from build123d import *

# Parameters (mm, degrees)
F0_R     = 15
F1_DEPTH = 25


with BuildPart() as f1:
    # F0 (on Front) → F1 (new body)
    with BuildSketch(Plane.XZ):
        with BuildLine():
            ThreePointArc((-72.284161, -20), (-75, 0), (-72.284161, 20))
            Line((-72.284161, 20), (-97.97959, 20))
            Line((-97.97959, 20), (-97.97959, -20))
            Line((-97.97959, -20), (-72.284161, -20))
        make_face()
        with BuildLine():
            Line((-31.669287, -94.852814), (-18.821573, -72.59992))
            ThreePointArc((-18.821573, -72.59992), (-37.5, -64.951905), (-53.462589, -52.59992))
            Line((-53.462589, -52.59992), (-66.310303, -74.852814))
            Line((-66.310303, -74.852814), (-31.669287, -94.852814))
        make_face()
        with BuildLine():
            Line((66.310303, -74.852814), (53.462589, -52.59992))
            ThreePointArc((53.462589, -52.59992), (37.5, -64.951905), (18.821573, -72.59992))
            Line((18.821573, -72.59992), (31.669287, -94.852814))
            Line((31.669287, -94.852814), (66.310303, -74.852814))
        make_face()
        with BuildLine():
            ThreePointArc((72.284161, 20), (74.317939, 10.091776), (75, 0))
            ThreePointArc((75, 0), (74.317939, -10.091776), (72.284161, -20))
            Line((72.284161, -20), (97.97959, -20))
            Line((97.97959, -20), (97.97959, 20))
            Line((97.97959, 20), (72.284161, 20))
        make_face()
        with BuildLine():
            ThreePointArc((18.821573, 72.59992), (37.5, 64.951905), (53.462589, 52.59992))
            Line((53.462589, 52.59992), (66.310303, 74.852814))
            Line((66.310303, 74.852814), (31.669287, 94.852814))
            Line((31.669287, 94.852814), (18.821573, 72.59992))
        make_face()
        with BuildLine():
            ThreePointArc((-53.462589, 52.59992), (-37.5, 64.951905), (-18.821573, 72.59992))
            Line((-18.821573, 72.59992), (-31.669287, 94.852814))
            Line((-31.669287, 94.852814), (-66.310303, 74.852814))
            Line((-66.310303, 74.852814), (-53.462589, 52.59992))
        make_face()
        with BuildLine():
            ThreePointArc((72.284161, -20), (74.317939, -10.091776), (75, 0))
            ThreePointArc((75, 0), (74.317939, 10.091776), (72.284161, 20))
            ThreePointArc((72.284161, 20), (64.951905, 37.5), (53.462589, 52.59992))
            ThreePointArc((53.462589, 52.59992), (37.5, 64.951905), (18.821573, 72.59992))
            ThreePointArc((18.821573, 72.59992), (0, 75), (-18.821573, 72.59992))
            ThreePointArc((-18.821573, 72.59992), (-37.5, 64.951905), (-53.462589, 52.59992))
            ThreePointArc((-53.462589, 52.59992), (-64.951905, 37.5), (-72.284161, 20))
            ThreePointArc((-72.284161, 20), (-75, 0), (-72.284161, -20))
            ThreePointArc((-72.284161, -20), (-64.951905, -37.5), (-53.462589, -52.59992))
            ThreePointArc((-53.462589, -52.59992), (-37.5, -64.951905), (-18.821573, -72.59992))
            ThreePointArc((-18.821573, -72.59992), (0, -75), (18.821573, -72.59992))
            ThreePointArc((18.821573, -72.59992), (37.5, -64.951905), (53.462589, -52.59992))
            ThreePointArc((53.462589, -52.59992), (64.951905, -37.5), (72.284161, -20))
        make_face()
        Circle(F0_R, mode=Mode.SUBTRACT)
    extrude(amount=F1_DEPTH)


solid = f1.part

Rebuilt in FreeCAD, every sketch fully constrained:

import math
import FreeCAD as App
import Part
import Sketcher

V = App.Vector
Q = App.Units.Quantity

doc = App.newDocument("Part")
params = doc.addObject("Spreadsheet::Sheet", "Params")
for row, (alias, value) in enumerate([
    ("sketch1_diameter", "30 mm"),
    ("sketch1_radius", "75.000001 mm"),
    ("sketch1_radius2", "74.999999 mm"),
    ("sketch1_height", "40 mm"),
    ("sketch1_length", "40 mm"),
    ("pad1_length", "25 mm"),
], start=1):
    params.set(f"A{row}", alias)
    params.set(f"B{row}", "=" + value)
    params.setAlias(f"B{row}", alias)

body = doc.addObject("PartDesign::Body", "Body")

# Sketch on XZ plane
sketch1 = body.newObject("Sketcher::SketchObject", "Sketch")
sketch1.AttachmentSupport = (doc.getObject("XZ_Plane"), [""])
sketch1.MapMode = "FlatFace"
sketch1.addGeometry([
    Part.LineSegment(V(-72, 20, 0), V(-98, 20, 0)),  # 0
    Part.LineSegment(V(-98, 20, 0), V(-98, -20, 0)),  # 1
    Part.LineSegment(V(-98, -20, 0), V(-72, -20, 0)),  # 2
    Part.ArcOfCircle(Part.Circle(V(0, 0, 0), V(0, 0, 1), 75), math.radians(-165), math.radians(-135)),  # 3
    Part.LineSegment(V(-53, -53, 0), V(-66, -75, 0)),  # 4
    Part.LineSegment(V(-66, -75, 0), V(-32, -95, 0)),  # 5
    Part.LineSegment(V(-32, -95, 0), V(-19, -73, 0)),  # 6
    Part.ArcOfCircle(Part.Circle(V(0, 0, 0), V(0, 0, 1), 75), math.radians(-105), math.radians(-75)),  # 7
    Part.LineSegment(V(19, -73, 0), V(32, -95, 0)),  # 8
    Part.LineSegment(V(32, -95, 0), V(66, -75, 0)),  # 9
    Part.LineSegment(V(66, -75, 0), V(53, -53, 0)),  # 10
    Part.ArcOfCircle(Part.Circle(V(0, 0, 0), V(0, 0, 1), 75), math.radians(-45), math.radians(-15)),  # 11
    Part.LineSegment(V(72, -20, 0), V(98, -20, 0)),  # 12
    Part.LineSegment(V(98, -20, 0), V(98, 20, 0)),  # 13
    Part.LineSegment(V(98, 20, 0), V(72, 20, 0)),  # 14
    Part.ArcOfCircle(Part.Circle(V(0, 0, 0), V(0, 0, 1), 75), math.radians(15), math.radians(45)),  # 15
    Part.LineSegment(V(53, 53, 0), V(66, 75, 0)),  # 16
    Part.LineSegment(V(66, 75, 0), V(32, 95, 0)),  # 17
    Part.LineSegment(V(32, 95, 0), V(19, 73, 0)),  # 18
    Part.ArcOfCircle(Part.Circle(V(0, 0, 0), V(0, 0, 1), 75), math.radians(75), math.radians(105)),  # 19
    Part.LineSegment(V(-19, 73, 0), V(-32, 95, 0)),  # 20
    Part.LineSegment(V(-32, 95, 0), V(-66, 75, 0)),  # 21
    Part.LineSegment(V(-66, 75, 0), V(-53, 53, 0)),  # 22
    Part.ArcOfCircle(Part.Circle(V(0, 0, 0), V(0, 0, 1), 75), math.radians(135), math.radians(165)),  # 23
    Part.Circle(V(0, 0, 0), V(0, 0, 1), 15),  # 24
], False)
sketch1.addConstraint([
    Sketcher.Constraint("Coincident", 0, 2, 1, 1),
    Sketcher.Constraint("Coincident", 1, 2, 2, 1),
    Sketcher.Constraint("Coincident", 2, 2, 3, 1),
    Sketcher.Constraint("Coincident", 3, 2, 4, 1),
    Sketcher.Constraint("Coincident", 4, 2, 5, 1),
    Sketcher.Constraint("Coincident", 5, 2, 6, 1),
    Sketcher.Constraint("Coincident", 6, 2, 7, 1),
    Sketcher.Constraint("Coincident", 7, 2, 8, 1),
    Sketcher.Constraint("Coincident", 8, 2, 9, 1),
    Sketcher.Constraint("Coincident", 9, 2, 10, 1),
    Sketcher.Constraint("Coincident", 10, 2, 11, 1),
    Sketcher.Constraint("Coincident", 11, 2, 12, 1),
    Sketcher.Constraint("Coincident", 12, 2, 13, 1),
    Sketcher.Constraint("Coincident", 13, 2, 14, 1),
    Sketcher.Constraint("Coincident", 14, 2, 15, 1),
    Sketcher.Constraint("Coincident", 15, 2, 16, 1),
    Sketcher.Constraint("Coincident", 16, 2, 17, 1),
    Sketcher.Constraint("Coincident", 17, 2, 18, 1),
    Sketcher.Constraint("Coincident", 18, 2, 19, 1),
    Sketcher.Constraint("Coincident", 19, 2, 20, 1),
    Sketcher.Constraint("Coincident", 20, 2, 21, 1),
    Sketcher.Constraint("Coincident", 21, 2, 22, 1),
    Sketcher.Constraint("Coincident", 22, 2, 23, 1),
    Sketcher.Constraint("Coincident", 23, 2, 0, 1),
    Sketcher.Constraint("Horizontal", 0),
    Sketcher.Constraint("Vertical", 1),
    Sketcher.Constraint("Horizontal", 2),
    Sketcher.Constraint("Horizontal", 12),
    Sketcher.Constraint("Vertical", 13),
    Sketcher.Constraint("Horizontal", 14),
    Sketcher.Constraint("Coincident", 3, 3, -1, 1),
    Sketcher.Constraint("Coincident", 7, 3, -1, 1),
    Sketcher.Constraint("Coincident", 11, 3, -1, 1),
    Sketcher.Constraint("Coincident", 15, 3, -1, 1),
    Sketcher.Constraint("Coincident", 19, 3, -1, 1),
    Sketcher.Constraint("Coincident", 23, 3, -1, 1),
    Sketcher.Constraint("Coincident", 24, 3, -1, 1),
    Sketcher.Constraint("Equal", 3, 11),
    Sketcher.Constraint("Equal", 11, 15),
    Sketcher.Constraint("Equal", 7, 19),
    Sketcher.Constraint("Equal", 15, 23),
    Sketcher.Constraint("Symmetric", 0, 2, 12, 2, -1, 1),
    Sketcher.Constraint("Symmetric", 4, 2, 16, 2, -1, 1),
    Sketcher.Constraint("Symmetric", 5, 2, 17, 2, -1, 1),
    Sketcher.Constraint("Symmetric", 8, 2, 20, 2, -1, 1),
    Sketcher.Constraint("Symmetric", 9, 2, 21, 2, -1, 1),
    Sketcher.Constraint("Symmetric", 5, 2, 8, 2, -2),
    Sketcher.Constraint("Symmetric", 4, 2, 9, 2, -2),
    Sketcher.Constraint("Perpendicular", 4, 5),
    Sketcher.Constraint("Perpendicular", 5, 6),
    Sketcher.Constraint("Perpendicular", 8, 9),
    Sketcher.Constraint("Perpendicular", 9, 10),
    Sketcher.Constraint("Parallel", 6, 16),
    Sketcher.Constraint("Perpendicular", 17, 18),
    Sketcher.Constraint("Parallel", 10, 20),
    Sketcher.Constraint("Perpendicular", 21, 22),
    Sketcher.Constraint("Horizontal", 2, 2, 11, 2),
    Sketcher.Constraint("Horizontal", 0, 2, 13, 2),
    Sketcher.Constraint("Equal", 4, 6),
    Sketcher.Constraint("Diameter", 24, 30.0),
    Sketcher.Constraint("Radius", 3, 75.000001),
    Sketcher.Constraint("Radius", 7, 74.999999),
    Sketcher.Constraint("DistanceY", 1, 2, 1, 1, 40.0),
    Sketcher.Constraint("Angle", 4, Q("-119.999999 deg")),
    Sketcher.Constraint("Distance", 5, 40.0),
    Sketcher.Constraint("DistanceX", 1, 2, 3, 2, 44.517001),
    Sketcher.Constraint("DistanceX", 4, 2, 11, 3, 66.310301),
])
sketch1.setExpression("Constraints[59]", "Params.sketch1_diameter")
sketch1.setExpression("Constraints[60]", "Params.sketch1_radius")
sketch1.setExpression("Constraints[61]", "Params.sketch1_radius2")
sketch1.setExpression("Constraints[62]", "Params.sketch1_height")
sketch1.setExpression("Constraints[64]", "Params.sketch1_length")
pad1 = body.newObject("PartDesign::Pad", "Pad")
pad1.Profile = sketch1
pad1.setExpression("Length", "Params.pad1_length")

doc.recompute()
